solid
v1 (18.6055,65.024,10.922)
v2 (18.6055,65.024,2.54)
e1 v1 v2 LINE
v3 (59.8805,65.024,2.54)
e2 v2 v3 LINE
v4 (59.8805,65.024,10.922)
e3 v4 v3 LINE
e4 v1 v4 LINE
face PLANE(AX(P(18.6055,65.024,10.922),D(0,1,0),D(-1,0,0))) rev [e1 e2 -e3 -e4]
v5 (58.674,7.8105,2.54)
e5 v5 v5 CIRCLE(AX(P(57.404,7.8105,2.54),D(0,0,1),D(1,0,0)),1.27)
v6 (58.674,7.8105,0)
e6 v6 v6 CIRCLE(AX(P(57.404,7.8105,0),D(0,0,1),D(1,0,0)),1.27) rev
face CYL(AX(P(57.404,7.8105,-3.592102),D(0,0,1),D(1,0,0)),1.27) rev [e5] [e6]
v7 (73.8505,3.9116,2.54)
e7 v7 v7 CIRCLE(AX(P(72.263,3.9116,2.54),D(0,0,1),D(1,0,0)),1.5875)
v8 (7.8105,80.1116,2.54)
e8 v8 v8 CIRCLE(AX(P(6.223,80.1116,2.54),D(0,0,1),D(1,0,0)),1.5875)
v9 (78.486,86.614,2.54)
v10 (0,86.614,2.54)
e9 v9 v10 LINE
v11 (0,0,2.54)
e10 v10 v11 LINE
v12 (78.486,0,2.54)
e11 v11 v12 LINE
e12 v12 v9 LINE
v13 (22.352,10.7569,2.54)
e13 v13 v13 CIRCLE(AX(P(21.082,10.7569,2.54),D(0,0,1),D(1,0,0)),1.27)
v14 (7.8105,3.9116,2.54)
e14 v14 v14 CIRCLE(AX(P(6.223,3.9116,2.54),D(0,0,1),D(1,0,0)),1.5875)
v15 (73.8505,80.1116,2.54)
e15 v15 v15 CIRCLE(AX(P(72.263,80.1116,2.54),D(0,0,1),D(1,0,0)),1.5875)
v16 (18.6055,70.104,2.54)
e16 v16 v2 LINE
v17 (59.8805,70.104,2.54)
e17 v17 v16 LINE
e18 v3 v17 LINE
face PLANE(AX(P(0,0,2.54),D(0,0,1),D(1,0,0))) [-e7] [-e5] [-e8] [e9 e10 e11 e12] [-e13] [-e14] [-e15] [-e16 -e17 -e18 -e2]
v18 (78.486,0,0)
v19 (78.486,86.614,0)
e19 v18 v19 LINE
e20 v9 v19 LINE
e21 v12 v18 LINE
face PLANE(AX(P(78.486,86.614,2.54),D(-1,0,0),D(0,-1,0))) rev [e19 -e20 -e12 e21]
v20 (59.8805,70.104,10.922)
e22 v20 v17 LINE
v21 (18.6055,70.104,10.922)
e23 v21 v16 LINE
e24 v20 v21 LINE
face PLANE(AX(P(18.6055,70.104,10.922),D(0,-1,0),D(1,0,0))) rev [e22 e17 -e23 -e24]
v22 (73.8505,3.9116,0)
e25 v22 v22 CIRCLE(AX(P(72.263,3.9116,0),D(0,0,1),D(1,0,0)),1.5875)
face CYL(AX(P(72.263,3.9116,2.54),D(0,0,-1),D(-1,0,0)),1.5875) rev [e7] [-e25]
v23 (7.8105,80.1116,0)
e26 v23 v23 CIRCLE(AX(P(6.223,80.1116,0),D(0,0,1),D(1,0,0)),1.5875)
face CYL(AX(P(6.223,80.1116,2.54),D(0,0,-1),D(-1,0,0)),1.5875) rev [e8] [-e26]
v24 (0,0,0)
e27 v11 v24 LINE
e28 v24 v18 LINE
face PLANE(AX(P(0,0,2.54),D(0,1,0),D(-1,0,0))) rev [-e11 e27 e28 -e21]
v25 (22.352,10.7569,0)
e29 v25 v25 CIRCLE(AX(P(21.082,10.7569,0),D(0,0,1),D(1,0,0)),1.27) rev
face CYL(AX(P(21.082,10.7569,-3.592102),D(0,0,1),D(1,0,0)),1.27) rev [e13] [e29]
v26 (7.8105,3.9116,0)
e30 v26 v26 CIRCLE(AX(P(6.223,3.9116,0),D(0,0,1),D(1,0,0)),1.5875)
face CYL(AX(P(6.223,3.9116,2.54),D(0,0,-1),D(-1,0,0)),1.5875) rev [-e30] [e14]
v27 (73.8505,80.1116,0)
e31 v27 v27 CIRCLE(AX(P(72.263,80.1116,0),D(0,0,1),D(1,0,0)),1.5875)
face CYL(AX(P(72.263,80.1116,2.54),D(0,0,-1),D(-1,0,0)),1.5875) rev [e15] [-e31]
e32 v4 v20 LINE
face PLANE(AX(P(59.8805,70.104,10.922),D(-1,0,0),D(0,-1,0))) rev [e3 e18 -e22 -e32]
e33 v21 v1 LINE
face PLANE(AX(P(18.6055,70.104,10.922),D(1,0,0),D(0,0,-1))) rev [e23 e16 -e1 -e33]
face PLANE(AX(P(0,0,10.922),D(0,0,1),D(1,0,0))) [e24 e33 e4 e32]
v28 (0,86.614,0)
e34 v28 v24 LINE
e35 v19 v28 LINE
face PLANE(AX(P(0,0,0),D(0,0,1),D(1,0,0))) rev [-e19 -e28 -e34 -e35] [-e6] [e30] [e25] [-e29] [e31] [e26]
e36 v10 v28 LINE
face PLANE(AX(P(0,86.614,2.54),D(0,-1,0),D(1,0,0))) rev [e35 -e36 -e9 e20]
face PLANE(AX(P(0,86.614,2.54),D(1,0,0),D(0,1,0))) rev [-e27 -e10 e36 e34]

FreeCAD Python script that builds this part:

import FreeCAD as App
import Part
import Sketcher
Q = App.Units.Quantity

doc = App.newDocument("Part")
body = doc.addObject("PartDesign::Body", "Body")

sketch1 = doc.addObject("Sketcher::SketchObject", "Sketch")
body.addObject(sketch1)
sketch1.AttachmentSupport = (doc.XY_Plane, [""])
sketch1.MapMode = "FlatFace"
sketch1.addGeometry(Part.LineSegment(App.Vector(0, 86.6, 0), App.Vector(0, 0, 0)), False)
sketch1.addGeometry(Part.LineSegment(App.Vector(0, 0, 0), App.Vector(78.5, 0, 0)), False)
sketch1.addGeometry(Part.LineSegment(App.Vector(78.5, 0, 0), App.Vector(78.5, 86.6, 0)), False)
sketch1.addGeometry(Part.LineSegment(App.Vector(78.5, 86.6, 0), App.Vector(0, 86.6, 0)), False)
sketch1.addGeometry(Part.Circle(App.Vector(6.2, 3.9, 0), App.Vector(0, 0, 1), 1.6), False)
sketch1.addGeometry(Part.Circle(App.Vector(72.3, 3.9, 0), App.Vector(0, 0, 1), 1.6), False)
sketch1.addGeometry(Part.Circle(App.Vector(6.2, 80.1, 0), App.Vector(0, 0, 1), 1.6), False)
sketch1.addGeometry(Part.Circle(App.Vector(72.3, 80.1, 0), App.Vector(0, 0, 1), 1.6), False)
sketch1.addConstraint(Sketcher.Constraint("Coincident", 0, 2, 1, 1))
sketch1.addConstraint(Sketcher.Constraint("Coincident", 1, 2, 2, 1))
sketch1.addConstraint(Sketcher.Constraint("Coincident", 2, 2, 3, 1))
sketch1.addConstraint(Sketcher.Constraint("Coincident", 3, 2, 0, 1))
sketch1.addConstraint(Sketcher.Constraint("Vertical", 0))
sketch1.addConstraint(Sketcher.Constraint("Horizontal", 1))
sketch1.addConstraint(Sketcher.Constraint("Vertical", 2))
sketch1.addConstraint(Sketcher.Constraint("Horizontal", 3))
sketch1.addConstraint(Sketcher.Constraint("Coincident", 0, 2, -1, 1))
sketch1.addConstraint(Sketcher.Constraint("Equal", 4, 5))
sketch1.addConstraint(Sketcher.Constraint("Equal", 5, 6))
sketch1.addConstraint(Sketcher.Constraint("Equal", 6, 7))
sketch1.addConstraint(Sketcher.Constraint("Horizontal", 4, 3, 5, 3))
sketch1.addConstraint(Sketcher.Constraint("Horizontal", 6, 3, 7, 3))
sketch1.addConstraint(Sketcher.Constraint("Vertical", 4, 3, 6, 3))
sketch1.addConstraint(Sketcher.Constraint("Vertical", 5, 3, 7, 3))
sketch1.addConstraint(Sketcher.Constraint("Diameter", 4, Q("0.125 in")))
sketch1.addConstraint(Sketcher.Constraint("DistanceY", 4, 3, 6, 3, Q("3 in")))
sketch1.addConstraint(Sketcher.Constraint("DistanceX", 1, 1, 1, 2, Q("3.09 in")))
sketch1.addConstraint(Sketcher.Constraint("DistanceY", 0, 2, 0, 1, Q("3.41 in")))
sketch1.addConstraint(Sketcher.Constraint("DistanceX", 4, 3, 5, 3, Q("2.6 in")))
sketch1.addConstraint(Sketcher.Constraint("DistanceX", -1, 1, 4, 3, Q("0.245 in")))
sketch1.addConstraint(Sketcher.Constraint("DistanceY", -1, 1, 4, 3, Q("0.154 in")))
pad1 = doc.addObject("PartDesign::Pad", "Pad")
body.addObject(pad1)
pad1.Profile = sketch1
pad1.Length = Q("0.1 in")

sketch2 = doc.addObject("Sketcher::SketchObject", "Sketch001")
body.addObject(sketch2)
sketch2.AttachmentSupport = (doc.XY_Plane, [""])
sketch2.MapMode = "FlatFace"
sketch2.AttachmentOffset = App.Placement(App.Vector(0, 0, 0.1 * 25.4), App.Rotation())
sketch2.addGeometry(Part.LineSegment(App.Vector(19, 70, 0), App.Vector(19, 65, 0)), False)
sketch2.addGeometry(Part.LineSegment(App.Vector(19, 65, 0), App.Vector(60, 65, 0)), False)
sketch2.addGeometry(Part.LineSegment(App.Vector(60, 65, 0), App.Vector(60, 70, 0)), False)
sketch2.addGeometry(Part.LineSegment(App.Vector(60, 70, 0), App.Vector(19, 70, 0)), False)
sketch2.addConstraint(Sketcher.Constraint("Coincident", 0, 2, 1, 1))
sketch2.addConstraint(Sketcher.Constraint("Coincident", 1, 2, 2, 1))
sketch2.addConstraint(Sketcher.Constraint("Coincident", 2, 2, 3, 1))
sketch2.addConstraint(Sketcher.Constraint("Coincident", 3, 2, 0, 1))
sketch2.addConstraint(Sketcher.Constraint("Vertical", 0))
sketch2.addConstraint(Sketcher.Constraint("Horizontal", 1))
sketch2.addConstraint(Sketcher.Constraint("Vertical", 2))
sketch2.addConstraint(Sketcher.Constraint("Horizontal", 3))
sketch2.addConstraint(Sketcher.Constraint("DistanceY", 0, 2, 0, 1, Q("0.2 in")))
sketch2.addConstraint(Sketcher.Constraint("DistanceX", 1, 1, 1, 2, Q("1.625 in")))
sketch2.addConstraint(Sketcher.Constraint("DistanceY", -1, 1, 0, 2, Q("2.56 in")))
sketch2.addConstraint(Sketcher.Constraint("DistanceX", -1, 1, 0, 2, Q("0.7325 in")))
pad2 = doc.addObject("PartDesign::Pad", "Pad001")
body.addObject(pad2)
pad2.Profile = sketch2
pad2.Length = Q("0.33 in")

sketch3 = doc.addObject("Sketcher::SketchObject", "Sketch002")
body.addObject(sketch3)
sketch3.AttachmentSupport = (doc.XY_Plane, [""])
sketch3.MapMode = "FlatFace"
sketch3.AttachmentOffset = App.Placement(App.Vector(0, 0, 0.1 * 25.4), App.Rotation())
sketch3.addGeometry(Part.Circle(App.Vector(21.1, 10.8, 0), App.Vector(0, 0, 1), 1.3), False)
sketch3.addGeometry(Part.Circle(App.Vector(57.4, 7.8, 0), App.Vector(0, 0, 1), 1.3), False)
sketch3.addConstraint(Sketcher.Constraint("Equal", 0, 1))
sketch3.addConstraint(Sketcher.Constraint("Diameter", 0, Q("0.1 in")))
sketch3.addConstraint(Sketcher.Constraint("DistanceX", -1, 1, 0, 3, Q("0.83 in")))
sketch3.addConstraint(Sketcher.Constraint("DistanceX", -1, 1, 1, 3, Q("2.26 in")))
sketch3.addConstraint(Sketcher.Constraint("DistanceY", 1, 3, 0, 3, Q("0.116 in")))
sketch3.addConstraint(Sketcher.Constraint("DistanceY", -1, 1, 0, 3, Q("0.4235 in")))
pocket1 = doc.addObject("PartDesign::Pocket", "Pocket")
body.addObject(pocket1)
pocket1.Profile = sketch3
pocket1.Length = Q("0.1 in")

doc.recompute()
